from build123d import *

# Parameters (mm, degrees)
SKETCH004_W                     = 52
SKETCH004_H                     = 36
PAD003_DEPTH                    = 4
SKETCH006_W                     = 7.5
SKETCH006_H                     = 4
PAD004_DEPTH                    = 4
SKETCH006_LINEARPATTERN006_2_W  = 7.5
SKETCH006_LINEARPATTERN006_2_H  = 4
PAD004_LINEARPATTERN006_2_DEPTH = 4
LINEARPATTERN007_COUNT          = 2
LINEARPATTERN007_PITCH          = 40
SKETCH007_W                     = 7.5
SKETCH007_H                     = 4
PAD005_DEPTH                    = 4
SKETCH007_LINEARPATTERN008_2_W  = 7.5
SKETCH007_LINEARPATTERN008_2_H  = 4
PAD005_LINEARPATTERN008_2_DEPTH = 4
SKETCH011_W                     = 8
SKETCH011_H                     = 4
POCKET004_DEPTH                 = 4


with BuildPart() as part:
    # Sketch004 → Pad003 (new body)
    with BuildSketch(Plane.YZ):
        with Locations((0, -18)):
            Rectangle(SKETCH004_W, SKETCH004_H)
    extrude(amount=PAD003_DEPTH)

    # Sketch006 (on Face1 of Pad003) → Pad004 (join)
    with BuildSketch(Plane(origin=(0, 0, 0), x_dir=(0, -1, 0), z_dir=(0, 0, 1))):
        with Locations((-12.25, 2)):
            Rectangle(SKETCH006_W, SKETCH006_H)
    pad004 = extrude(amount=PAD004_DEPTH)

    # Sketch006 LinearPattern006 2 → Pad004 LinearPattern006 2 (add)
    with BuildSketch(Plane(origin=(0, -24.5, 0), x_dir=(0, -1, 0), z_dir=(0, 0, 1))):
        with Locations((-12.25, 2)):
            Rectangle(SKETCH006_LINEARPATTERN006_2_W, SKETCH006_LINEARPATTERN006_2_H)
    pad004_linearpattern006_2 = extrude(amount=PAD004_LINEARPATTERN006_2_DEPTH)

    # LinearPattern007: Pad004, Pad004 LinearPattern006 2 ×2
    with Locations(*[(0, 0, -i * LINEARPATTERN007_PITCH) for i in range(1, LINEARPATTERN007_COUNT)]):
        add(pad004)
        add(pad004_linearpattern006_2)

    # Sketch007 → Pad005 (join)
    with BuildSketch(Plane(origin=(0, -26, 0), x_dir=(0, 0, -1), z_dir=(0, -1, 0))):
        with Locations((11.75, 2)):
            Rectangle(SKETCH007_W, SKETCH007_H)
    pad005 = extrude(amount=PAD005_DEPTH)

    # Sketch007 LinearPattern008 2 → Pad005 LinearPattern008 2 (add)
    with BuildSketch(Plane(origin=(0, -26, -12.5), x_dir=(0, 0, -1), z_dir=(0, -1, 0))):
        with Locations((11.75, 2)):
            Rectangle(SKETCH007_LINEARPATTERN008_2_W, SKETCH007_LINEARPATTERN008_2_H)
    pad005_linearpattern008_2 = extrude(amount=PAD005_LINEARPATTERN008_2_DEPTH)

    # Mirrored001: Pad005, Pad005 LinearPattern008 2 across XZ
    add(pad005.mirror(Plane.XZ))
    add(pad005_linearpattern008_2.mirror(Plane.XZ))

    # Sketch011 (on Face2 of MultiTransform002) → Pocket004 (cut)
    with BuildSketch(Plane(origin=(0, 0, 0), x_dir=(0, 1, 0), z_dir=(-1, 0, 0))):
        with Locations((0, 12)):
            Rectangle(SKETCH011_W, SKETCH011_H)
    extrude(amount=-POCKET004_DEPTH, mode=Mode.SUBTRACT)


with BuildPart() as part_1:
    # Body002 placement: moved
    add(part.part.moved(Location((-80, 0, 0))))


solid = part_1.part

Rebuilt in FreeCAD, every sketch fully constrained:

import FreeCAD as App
import Part
import Sketcher
from FreeCAD import Vector

doc = App.newDocument("Part")
body = doc.addObject("PartDesign::Body", "Body")

# Sketch on YZ plane
sketch1 = doc.addObject("Sketcher::SketchObject", "Sketch")
body.addObject(sketch1)
sketch1.AttachmentSupport = (doc.YZ_Plane, [""])
sketch1.MapMode = "FlatFace"
sketch1.addGeometry([
    Part.LineSegment(Vector(-26, 0, 0), Vector(-26, -36, 0)),
    Part.LineSegment(Vector(-26, -36, 0), Vector(26, -36, 0)),
    Part.LineSegment(Vector(26, -36, 0), Vector(26, 0, 0)),
    Part.LineSegment(Vector(26, 0, 0), Vector(-26, 0, 0)),
], False)
sketch1.addConstraint([
    Sketcher.Constraint("Coincident", 0, 2, 1, 1),
    Sketcher.Constraint("Coincident", 1, 2, 2, 1),
    Sketcher.Constraint("Coincident", 2, 2, 3, 1),
    Sketcher.Constraint("Coincident", 3, 2, 0, 1),
    Sketcher.Constraint("Vertical", 0),
    Sketcher.Constraint("Horizontal", 1),
    Sketcher.Constraint("Vertical", 2),
    Sketcher.Constraint("Horizontal", 3),
    Sketcher.Constraint("Symmetric", 2, 2, 3, 2, -1, 1),
    Sketcher.Constraint("DistanceX", 1, 1, 1, 2, 52.0),
    Sketcher.Constraint("DistanceY", 0, 2, 0, 1, 36.0),
])
pad1 = doc.addObject("PartDesign::Pad", "Pad")
body.addObject(pad1)
pad1.Profile = sketch1
pad1.Length = 4

# Sketch on XY plane
sketch2 = doc.addObject("Sketcher::SketchObject", "Sketch001")
body.addObject(sketch2)
sketch2.AttachmentSupport = (doc.XY_Plane, [""])
sketch2.MapMode = "FlatFace"
sketch2.addGeometry([
    Part.LineSegment(Vector(4, 16, 0), Vector(0, 16, 0)),
    Part.LineSegment(Vector(0, 16, 0), Vector(0, 8.5, 0)),
    Part.LineSegment(Vector(0, 8.5, 0), Vector(4, 8.5, 0)),
    Part.LineSegment(Vector(4, 8.5, 0), Vector(4, 16, 0)),
], False)
sketch2.addConstraint([
    Sketcher.Constraint("Coincident", 0, 2, 1, 1),
    Sketcher.Constraint("Coincident", 1, 2, 2, 1),
    Sketcher.Constraint("Coincident", 2, 2, 3, 1),
    Sketcher.Constraint("Coincident", 3, 2, 0, 1),
    Sketcher.Constraint("Horizontal", 0),
    Sketcher.Constraint("Vertical", 1),
    Sketcher.Constraint("Horizontal", 2),
    Sketcher.Constraint("Vertical", 3),
    Sketcher.Constraint("PointOnObject", 0, 2, -2),
    Sketcher.Constraint("DistanceX", 0, 2, 0, 1, 4.0),
    Sketcher.Constraint("DistanceY", 1, 2, 1, 1, 7.5),
    Sketcher.Constraint("DistanceY", -1, 1, 0, 2, 16.0),
])
pad2 = doc.addObject("PartDesign::Pad", "Pad001")
body.addObject(pad2)
pad2.Profile = sketch2
pad2.Length = 4

# Sketch on XY plane
sketch3 = doc.addObject("Sketcher::SketchObject", "Sketch002")
body.addObject(sketch3)
sketch3.AttachmentSupport = (doc.XY_Plane, [""])
sketch3.MapMode = "FlatFace"
sketch3.addGeometry([
    Part.LineSegment(Vector(4, -8.5, 0), Vector(0, -8.5, 0)),
    Part.LineSegment(Vector(0, -8.5, 0), Vector(0, -16, 0)),
    Part.LineSegment(Vector(0, -16, 0), Vector(4, -16, 0)),
    Part.LineSegment(Vector(4, -16, 0), Vector(4, -8.5, 0)),
], False)
sketch3.addConstraint([
    Sketcher.Constraint("Coincident", 0, 2, 1, 1),
    Sketcher.Constraint("Coincident", 1, 2, 2, 1),
    Sketcher.Constraint("Coincident", 2, 2, 3, 1),
    Sketcher.Constraint("Coincident", 3, 2, 0, 1),
    Sketcher.Constraint("Horizontal", 0),
    Sketcher.Constraint("Vertical", 1),
    Sketcher.Constraint("Horizontal", 2),
    Sketcher.Constraint("Vertical", 3),
    Sketcher.Constraint("PointOnObject", 0, 2, -2),
    Sketcher.Constraint("DistanceX", 0, 2, 0, 1, 4.0),
    Sketcher.Constraint("DistanceY", 1, 2, 1, 1, 7.5),
    Sketcher.Constraint("DistanceY", 1, 2, -1, 1, 16.0),
])
pad3 = doc.addObject("PartDesign::Pad", "Pad002")
body.addObject(pad3)
pad3.Profile = sketch3
pad3.Length = 4
doc.recompute()

linearpattern = doc.addObject("PartDesign::LinearPattern", "LinearPattern")
body.addObject(linearpattern)
linearpattern.Originals = [pad2, pad3]
linearpattern.Direction = (doc.Z_Axis, [""])
linearpattern.Mode = "offset"
linearpattern.Offset = 40
linearpattern.Occurrences = 2
linearpattern.Reversed = True
body.Tip = linearpattern

# Sketch on XZ plane
sketch4 = doc.addObject("Sketcher::SketchObject", "Sketch003")
body.addObject(sketch4)
sketch4.AttachmentSupport = (doc.XZ_Plane, [""])
sketch4.MapMode = "FlatFace"
sketch4.AttachmentOffset = App.Placement(Vector(0, 0, 26), App.Rotation())
sketch4.addGeometry([
    Part.LineSegment(Vector(4, -8, 0), Vector(0, -8, 0)),
    Part.LineSegment(Vector(0, -8, 0), Vector(0, -15.5, 0)),
    Part.LineSegment(Vector(0, -15.5, 0), Vector(4, -15.5, 0)),
    Part.LineSegment(Vector(4, -15.5, 0), Vector(4, -8, 0)),
], False)
sketch4.addConstraint([
    Sketcher.Constraint("Coincident", 0, 2, 1, 1),
    Sketcher.Constraint("Coincident", 1, 2, 2, 1),
    Sketcher.Constraint("Coincident", 2, 2, 3, 1),
    Sketcher.Constraint("Coincident", 3, 2, 0, 1),
    Sketcher.Constraint("Horizontal", 0),
    Sketcher.Constraint("Vertical", 1),
    Sketcher.Constraint("Horizontal", 2),
    Sketcher.Constraint("Vertical", 3),
    Sketcher.Constraint("PointOnObject", 0, 2, -2),
    Sketcher.Constraint("DistanceX", 0, 2, 0, 1, 4.0),
    Sketcher.Constraint("DistanceY", 1, 2, 1, 1, 7.5),
    Sketcher.Constraint("DistanceY", 0, 2, -1, 1, 8.0),
])
pad4 = doc.addObject("PartDesign::Pad", "Pad003")
body.addObject(pad4)
pad4.Profile = sketch4
pad4.Length = 4

# Sketch on XZ plane
sketch5 = doc.addObject("Sketcher::SketchObject", "Sketch004")
body.addObject(sketch5)
sketch5.AttachmentSupport = (doc.XZ_Plane, [""])
sketch5.MapMode = "FlatFace"
sketch5.AttachmentOffset = App.Placement(Vector(0, 0, 26), App.Rotation())
sketch5.addGeometry([
    Part.LineSegment(Vector(4, -20.5, 0), Vector(0, -20.5, 0)),
    Part.LineSegment(Vector(0, -20.5, 0), Vector(0, -28, 0)),
    Part.LineSegment(Vector(0, -28, 0), Vector(4, -28, 0)),
    Part.LineSegment(Vector(4, -28, 0), Vector(4, -20.5, 0)),
], False)
sketch5.addConstraint([
    Sketcher.Constraint("Coincident", 0, 2, 1, 1),
    Sketcher.Constraint("Coincident", 1, 2, 2, 1),
    Sketcher.Constraint("Coincident", 2, 2, 3, 1),
    Sketcher.Constraint("Coincident", 3, 2, 0, 1),
    Sketcher.Constraint("Horizontal", 0),
    Sketcher.Constraint("Vertical", 1),
    Sketcher.Constraint("Horizontal", 2),
    Sketcher.Constraint("Vertical", 3),
    Sketcher.Constraint("PointOnObject", 0, 2, -2),
    Sketcher.Constraint("DistanceX", 0, 2, 0, 1, 4.0),
    Sketcher.Constraint("DistanceY", 1, 2, 1, 1, 7.5),
    Sketcher.Constraint("DistanceY", 1, 2, -1, 1, 28.0),
])
pad5 = doc.addObject("PartDesign::Pad", "Pad004")
body.addObject(pad5)
pad5.Profile = sketch5
pad5.Length = 4
doc.recompute()

mirrored = doc.addObject("PartDesign::Mirrored", "Mirrored")
body.addObject(mirrored)
mirrored.Originals = [pad4, pad5]
mirrored.MirrorPlane = (doc.XZ_Plane, [""])
body.Tip = mirrored

# Sketch on YZ plane
sketch6 = doc.addObject("Sketcher::SketchObject", "Sketch005")
body.addObject(sketch6)
sketch6.AttachmentSupport = (doc.YZ_Plane, [""])
sketch6.MapMode = "FlatFace"
sketch6.addGeometry([
    Part.LineSegment(Vector(-4, -14, 0), Vector(-4, -10, 0)),
    Part.LineSegment(Vector(-4, -10, 0), Vector(4, -10, 0)),
    Part.LineSegment(Vector(4, -10, 0), Vector(4, -14, 0)),
    Part.LineSegment(Vector(4, -14, 0), Vector(-4, -14, 0)),
], False)
sketch6.addConstraint([
    Sketcher.Constraint("Coincident", 0, 2, 1, 1),
    Sketcher.Constraint("Coincident", 1, 2, 2, 1),
    Sketcher.Constraint("Coincident", 2, 2, 3, 1),
    Sketcher.Constraint("Coincident", 3, 2, 0, 1),
    Sketcher.Constraint("Vertical", 0),
    Sketcher.Constraint("Horizontal", 1),
    Sketcher.Constraint("Vertical", 2),
    Sketcher.Constraint("Horizontal", 3),
    Sketcher.Constraint("DistanceX", 1, 1, 1, 2, 8.0),
    Sketcher.Constraint("DistanceY", 0, 1, 0, 2, 4.0),
    Sketcher.Constraint("DistanceX", 0, 2, -1, 1, 4.0),
    Sketcher.Constraint("DistanceY", 0, 2, -1, 1, 10.0),
])
pocket1 = doc.addObject("PartDesign::Pocket", "Pocket")
body.addObject(pocket1)
pocket1.Profile = sketch6
pocket1.Length = 4
pocket1.Reversed = True
body2 = doc.addObject("PartDesign::Body", "Body001")
doc.recompute()

body.Placement = App.Placement(Vector(-80, 0, 0), App.Rotation(Vector(0, 0, 1), 0))
boolean = doc.addObject("PartDesign::Boolean", "Boolean")
body2.addObject(boolean)
boolean.Type = "Fuse"
boolean.addObjects([body])

doc.recompute()
